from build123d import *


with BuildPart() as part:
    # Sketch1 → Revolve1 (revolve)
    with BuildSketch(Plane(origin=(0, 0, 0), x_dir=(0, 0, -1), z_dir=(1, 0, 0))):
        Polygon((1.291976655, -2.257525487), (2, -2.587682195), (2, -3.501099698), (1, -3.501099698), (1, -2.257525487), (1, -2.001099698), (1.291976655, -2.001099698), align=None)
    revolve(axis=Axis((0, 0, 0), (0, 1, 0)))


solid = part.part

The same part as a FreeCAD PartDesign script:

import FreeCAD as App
import Part
import Sketcher

V = App.Vector
Q = App.Units.Quantity

doc = App.newDocument("Part")
params = doc.addObject("Spreadsheet::Sheet", "Params")
for row, (alias, value) in enumerate([
    ("sketch1_height", "1 mm"),
    ("sketch1_width", "1.5 mm"),
    ("revolution_angle", "360 deg"),
], start=1):
    params.set(f"A{row}", alias)
    params.set(f"B{row}", "=" + value)
    params.setAlias(f"B{row}", alias)

body = doc.addObject("PartDesign::Body", "Body")

# Sketch on YZ plane
sketch1 = body.newObject("Sketcher::SketchObject", "Sketch")
sketch1.AttachmentSupport = (doc.getObject("YZ_Plane"), [""])
sketch1.MapMode = "FlatFace"
sketch1.addGeometry([
    Part.LineSegment(V(-2.587682, -2, 0), V(-2.257525, -1.291977, 0)),  # 0
    Part.LineSegment(V(-2.257525, -1.291977, 0), V(-2.0011, -1.291977, 0)),  # 1
    Part.LineSegment(V(-2.0011, -1.291977, 0), V(-2.0011, -1, 0)),  # 2
    Part.LineSegment(V(-2.0011, -1, 0), V(-3.5011, -1, 0)),  # 3
    Part.LineSegment(V(-3.5011, -1, 0), V(-3.5011, -2, 0)),  # 4
    Part.LineSegment(V(-3.5011, -2, 0), V(-2.587682, -2, 0)),  # 5
], False)
sketch1.addConstraint([
    Sketcher.Constraint("Coincident", 0, 2, 1, 1),
    Sketcher.Constraint("Coincident", 1, 2, 2, 1),
    Sketcher.Constraint("Coincident", 2, 2, 3, 1),
    Sketcher.Constraint("Coincident", 3, 2, 4, 1),
    Sketcher.Constraint("Coincident", 4, 2, 5, 1),
    Sketcher.Constraint("Coincident", 5, 2, 0, 1),
    Sketcher.Constraint("Horizontal", 1),
    Sketcher.Constraint("Vertical", 2),
    Sketcher.Constraint("Horizontal", 3),
    Sketcher.Constraint("Vertical", 4),
    Sketcher.Constraint("Horizontal", 5),
    Sketcher.Constraint("DistanceY", 4, 2, 4, 1, Q("1 mm")),
    Sketcher.Constraint("Angle", 0, Q("65 deg")),
    Sketcher.Constraint("DistanceX", 3, 2, 3, 1, Q("1.5 mm")),
    Sketcher.Constraint("DistanceY", 2, 2, -1, 1, Q("1 mm")),
    Sketcher.Constraint("DistanceX", 1, 2, -1, 1, Q("2.0011 mm")),
    Sketcher.Constraint("DistanceX", 1, 1, 1, 2, Q("0.256426 mm")),
    Sketcher.Constraint("DistanceX", 5, 1, 5, 2, Q("0.913418 mm")),
])
sketch1.setExpression("Constraints[11]", "Params.sketch1_height")
sketch1.setExpression("Constraints[13]", "Params.sketch1_width")
revolution = body.newObject("PartDesign::Revolution", "Revolution")
revolution.Profile = sketch1
revolution.ReferenceAxis = (sketch1, ["H_Axis"])
revolution.setExpression("Angle", "Params.revolution_angle")

doc.recompute()
